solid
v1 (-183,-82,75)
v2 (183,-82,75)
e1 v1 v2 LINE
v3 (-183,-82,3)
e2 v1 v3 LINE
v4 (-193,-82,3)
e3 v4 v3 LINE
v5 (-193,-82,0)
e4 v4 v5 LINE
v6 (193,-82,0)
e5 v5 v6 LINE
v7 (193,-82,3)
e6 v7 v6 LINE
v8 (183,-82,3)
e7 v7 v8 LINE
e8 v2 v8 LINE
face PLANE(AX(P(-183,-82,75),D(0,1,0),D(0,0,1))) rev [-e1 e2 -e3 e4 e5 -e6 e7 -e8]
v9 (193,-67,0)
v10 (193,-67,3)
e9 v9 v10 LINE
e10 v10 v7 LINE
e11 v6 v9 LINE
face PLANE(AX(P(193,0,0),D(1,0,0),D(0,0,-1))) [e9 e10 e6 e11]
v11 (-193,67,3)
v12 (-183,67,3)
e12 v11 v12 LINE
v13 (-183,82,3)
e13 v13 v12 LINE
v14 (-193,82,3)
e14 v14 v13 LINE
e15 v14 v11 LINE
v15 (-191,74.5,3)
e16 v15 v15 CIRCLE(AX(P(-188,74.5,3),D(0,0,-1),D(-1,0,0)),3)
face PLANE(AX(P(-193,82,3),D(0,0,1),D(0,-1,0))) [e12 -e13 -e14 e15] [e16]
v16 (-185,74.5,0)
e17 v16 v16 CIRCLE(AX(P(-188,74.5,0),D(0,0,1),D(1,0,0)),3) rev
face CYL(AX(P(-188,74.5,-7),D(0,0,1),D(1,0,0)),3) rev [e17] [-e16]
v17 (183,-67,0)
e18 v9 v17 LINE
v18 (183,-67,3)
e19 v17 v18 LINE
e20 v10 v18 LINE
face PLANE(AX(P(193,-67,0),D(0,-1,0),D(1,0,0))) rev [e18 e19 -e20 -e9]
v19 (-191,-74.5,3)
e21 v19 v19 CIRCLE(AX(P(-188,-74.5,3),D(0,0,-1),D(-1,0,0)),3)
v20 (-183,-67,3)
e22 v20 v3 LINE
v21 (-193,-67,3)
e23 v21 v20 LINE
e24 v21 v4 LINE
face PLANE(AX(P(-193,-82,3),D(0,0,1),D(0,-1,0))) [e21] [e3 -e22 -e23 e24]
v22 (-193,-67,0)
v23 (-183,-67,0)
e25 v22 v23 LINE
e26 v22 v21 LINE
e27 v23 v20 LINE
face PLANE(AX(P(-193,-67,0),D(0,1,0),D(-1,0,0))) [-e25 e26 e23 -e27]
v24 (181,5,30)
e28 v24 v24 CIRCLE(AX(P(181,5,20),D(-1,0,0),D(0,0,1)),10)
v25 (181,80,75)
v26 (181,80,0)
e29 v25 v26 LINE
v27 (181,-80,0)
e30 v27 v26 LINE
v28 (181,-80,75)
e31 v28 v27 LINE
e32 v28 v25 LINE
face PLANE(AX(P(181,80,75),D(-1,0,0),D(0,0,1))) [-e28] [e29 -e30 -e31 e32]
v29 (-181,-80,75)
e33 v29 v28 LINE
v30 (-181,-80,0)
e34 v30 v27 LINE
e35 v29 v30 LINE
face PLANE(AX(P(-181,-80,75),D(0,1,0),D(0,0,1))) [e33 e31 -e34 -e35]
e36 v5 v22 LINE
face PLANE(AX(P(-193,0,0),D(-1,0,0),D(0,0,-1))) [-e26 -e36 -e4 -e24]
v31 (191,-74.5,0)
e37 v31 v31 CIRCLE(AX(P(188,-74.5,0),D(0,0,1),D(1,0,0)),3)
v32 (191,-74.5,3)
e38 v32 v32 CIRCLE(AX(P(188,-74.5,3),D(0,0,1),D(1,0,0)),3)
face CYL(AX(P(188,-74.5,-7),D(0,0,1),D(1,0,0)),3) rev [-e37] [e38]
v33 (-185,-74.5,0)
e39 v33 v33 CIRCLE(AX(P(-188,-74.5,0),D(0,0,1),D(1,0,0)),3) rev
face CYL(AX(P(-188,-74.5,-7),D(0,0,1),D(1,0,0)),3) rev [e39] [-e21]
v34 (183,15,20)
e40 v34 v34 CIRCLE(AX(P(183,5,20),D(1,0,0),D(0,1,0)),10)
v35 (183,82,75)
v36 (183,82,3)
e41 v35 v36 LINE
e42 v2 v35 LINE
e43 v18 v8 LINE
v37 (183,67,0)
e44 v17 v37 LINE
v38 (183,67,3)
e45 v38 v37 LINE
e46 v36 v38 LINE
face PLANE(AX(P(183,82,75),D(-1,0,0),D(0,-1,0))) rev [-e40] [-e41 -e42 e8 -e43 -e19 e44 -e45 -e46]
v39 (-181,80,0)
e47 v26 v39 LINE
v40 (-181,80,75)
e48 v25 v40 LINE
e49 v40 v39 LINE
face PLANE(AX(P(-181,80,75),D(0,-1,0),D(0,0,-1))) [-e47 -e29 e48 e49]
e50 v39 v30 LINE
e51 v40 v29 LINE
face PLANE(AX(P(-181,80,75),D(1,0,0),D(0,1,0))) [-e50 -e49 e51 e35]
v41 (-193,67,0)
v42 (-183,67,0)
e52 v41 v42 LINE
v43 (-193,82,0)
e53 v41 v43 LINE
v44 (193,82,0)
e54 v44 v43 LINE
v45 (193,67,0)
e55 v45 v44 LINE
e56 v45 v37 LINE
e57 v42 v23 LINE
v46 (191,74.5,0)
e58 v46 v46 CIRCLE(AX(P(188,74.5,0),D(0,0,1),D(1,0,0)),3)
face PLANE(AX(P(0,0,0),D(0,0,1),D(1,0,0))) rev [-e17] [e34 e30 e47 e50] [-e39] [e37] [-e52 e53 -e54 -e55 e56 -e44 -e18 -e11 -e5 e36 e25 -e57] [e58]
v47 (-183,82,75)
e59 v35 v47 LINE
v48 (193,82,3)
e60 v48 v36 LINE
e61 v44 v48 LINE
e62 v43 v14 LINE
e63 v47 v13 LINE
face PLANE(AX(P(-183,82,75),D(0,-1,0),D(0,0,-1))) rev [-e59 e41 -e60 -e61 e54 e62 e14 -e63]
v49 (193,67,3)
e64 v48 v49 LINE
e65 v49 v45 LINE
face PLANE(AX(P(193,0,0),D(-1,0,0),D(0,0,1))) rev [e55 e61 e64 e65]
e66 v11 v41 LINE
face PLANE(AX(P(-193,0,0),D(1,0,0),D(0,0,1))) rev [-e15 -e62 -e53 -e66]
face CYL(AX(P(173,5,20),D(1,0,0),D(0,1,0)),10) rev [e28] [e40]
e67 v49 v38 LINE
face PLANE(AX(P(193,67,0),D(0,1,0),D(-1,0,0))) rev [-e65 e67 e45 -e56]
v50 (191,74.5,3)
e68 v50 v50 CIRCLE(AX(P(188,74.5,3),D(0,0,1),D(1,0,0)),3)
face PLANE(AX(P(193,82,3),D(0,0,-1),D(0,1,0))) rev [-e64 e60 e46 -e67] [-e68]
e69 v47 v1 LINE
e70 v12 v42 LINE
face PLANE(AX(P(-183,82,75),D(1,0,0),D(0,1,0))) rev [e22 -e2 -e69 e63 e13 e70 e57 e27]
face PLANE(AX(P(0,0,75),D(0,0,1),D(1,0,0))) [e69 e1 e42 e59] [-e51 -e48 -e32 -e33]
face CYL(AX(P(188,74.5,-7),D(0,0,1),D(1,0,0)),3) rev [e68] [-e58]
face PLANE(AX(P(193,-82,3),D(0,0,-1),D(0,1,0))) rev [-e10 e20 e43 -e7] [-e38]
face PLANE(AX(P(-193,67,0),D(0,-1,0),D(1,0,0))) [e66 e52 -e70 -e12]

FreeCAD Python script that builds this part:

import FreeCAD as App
import Part
import Sketcher

V = App.Vector

doc = App.newDocument("Part")
params = doc.addObject("Spreadsheet::Sheet", "Params")
for row, (alias, value) in enumerate([
    ("sketch1_width", "366 mm"),
    ("sketch1_width2", "362 mm"),
    ("sketch1_height", "164 mm"),
    ("sketch1_height2", "160 mm"),
    ("pad1_length", "75 mm"),
    ("sketch2_width", "15 mm"),
    ("sketch2_height", "3 mm"),
    ("pad2_length", "10 mm"),
    ("sketch3_diameter", "6 mm"),
    ("pocket1_length", "10 mm"),
    ("sketch4_diameter", "20 mm"),
    ("pocket2_length", "10 mm"),
], start=1):
    params.set(f"A{row}", alias)
    params.set(f"B{row}", "=" + value)
    params.setAlias(f"B{row}", alias)

body = doc.addObject("PartDesign::Body", "Body")

sketch1 = body.newObject("Sketcher::SketchObject", "Sketch")
sketch1.AttachmentSupport = (doc.getObject("XY_Plane"), [""])
sketch1.MapMode = "FlatFace"
sketch1.addGeometry(Part.LineSegment(V(-183, 82, 0), V(-183, -82, 0)), False)
sketch1.addGeometry(Part.LineSegment(V(-183, -82, 0), V(183, -82, 0)), False)
sketch1.addGeometry(Part.LineSegment(V(183, -82, 0), V(183, 82, 0)), False)
sketch1.addGeometry(Part.LineSegment(V(183, 82, 0), V(-183, 82, 0)), False)
sketch1.addGeometry(Part.LineSegment(V(181, -80, 0), V(-181, -80, 0)), False)
sketch1.addGeometry(Part.LineSegment(V(-181, -80, 0), V(-181, 80, 0)), False)
sketch1.addGeometry(Part.LineSegment(V(-181, 80, 0), V(181, 80, 0)), False)
sketch1.addGeometry(Part.LineSegment(V(181, 80, 0), V(181, -80, 0)), False)
sketch1.addConstraint(Sketcher.Constraint("Coincident", 0, 2, 1, 1))
sketch1.addConstraint(Sketcher.Constraint("Coincident", 1, 2, 2, 1))
sketch1.addConstraint(Sketcher.Constraint("Coincident", 2, 2, 3, 1))
sketch1.addConstraint(Sketcher.Constraint("Coincident", 3, 2, 0, 1))
sketch1.addConstraint(Sketcher.Constraint("Coincident", 4, 2, 5, 1))
sketch1.addConstraint(Sketcher.Constraint("Coincident", 5, 2, 6, 1))
sketch1.addConstraint(Sketcher.Constraint("Coincident", 6, 2, 7, 1))
sketch1.addConstraint(Sketcher.Constraint("Coincident", 7, 2, 4, 1))
sketch1.addConstraint(Sketcher.Constraint("Vertical", 0))
sketch1.addConstraint(Sketcher.Constraint("Horizontal", 1))
sketch1.addConstraint(Sketcher.Constraint("Vertical", 2))
sketch1.addConstraint(Sketcher.Constraint("Horizontal", 3))
sketch1.addConstraint(Sketcher.Constraint("Horizontal", 4))
sketch1.addConstraint(Sketcher.Constraint("Vertical", 5))
sketch1.addConstraint(Sketcher.Constraint("Horizontal", 6))
sketch1.addConstraint(Sketcher.Constraint("Vertical", 7))
sketch1.addConstraint(Sketcher.Constraint("Symmetric", 0, 2, 2, 2, -1, 1))
sketch1.addConstraint(Sketcher.Constraint("Symmetric", 4, 2, 6, 2, -1, 1))
sketch1.addConstraint(Sketcher.Constraint("DistanceX", 1, 1, 1, 2, 366.0))
sketch1.addConstraint(Sketcher.Constraint("DistanceX", 4, 2, 4, 1, 362.0))
sketch1.addConstraint(Sketcher.Constraint("DistanceY", 0, 2, 0, 1, 164.0))
sketch1.addConstraint(Sketcher.Constraint("DistanceY", 5, 1, 5, 2, 160.0))
sketch1.setExpression("Constraints[18]", "Params.sketch1_width")
sketch1.setExpression("Constraints[19]", "Params.sketch1_width2")
sketch1.setExpression("Constraints[20]", "Params.sketch1_height")
sketch1.setExpression("Constraints[21]", "Params.sketch1_height2")
pad1 = body.newObject("PartDesign::Pad", "Pad")
pad1.Profile = sketch1
pad1.setExpression("Length", "Params.pad1_length")

sketch2 = body.newObject("Sketcher::SketchObject", "Sketch001")
sketch2.AttachmentSupport = (doc.getObject("YZ_Plane"), [""])
sketch2.MapMode = "FlatFace"
sketch2.AttachmentOffset = App.Placement(V(0, 0, 183), App.Rotation())
sketch2.addGeometry(Part.LineSegment(V(82, 3, 0), V(67, 3, 0)), False)
sketch2.addGeometry(Part.LineSegment(V(67, 3, 0), V(67, 0, 0)), False)
sketch2.addGeometry(Part.LineSegment(V(67, 0, 0), V(82, 0, 0)), False)
sketch2.addGeometry(Part.LineSegment(V(82, 0, 0), V(82, 3, 0)), False)
sketch2.addGeometry(Part.LineSegment(V(-67, 3, 0), V(-82, 3, 0)), False)
sketch2.addGeometry(Part.LineSegment(V(-82, 3, 0), V(-82, 0, 0)), False)
sketch2.addGeometry(Part.LineSegment(V(-82, 0, 0), V(-67, 0, 0)), False)
sketch2.addGeometry(Part.LineSegment(V(-67, 0, 0), V(-67, 3, 0)), False)
sketch2.addConstraint(Sketcher.Constraint("Coincident", 0, 2, 1, 1))
sketch2.addConstraint(Sketcher.Constraint("Coincident", 1, 2, 2, 1))
sketch2.addConstraint(Sketcher.Constraint("Coincident", 2, 2, 3, 1))
sketch2.addConstraint(Sketcher.Constraint("Coincident", 3, 2, 0, 1))
sketch2.addConstraint(Sketcher.Constraint("Coincident", 4, 2, 5, 1))
sketch2.addConstraint(Sketcher.Constraint("Coincident", 5, 2, 6, 1))
sketch2.addConstraint(Sketcher.Constraint("Coincident", 6, 2, 7, 1))
sketch2.addConstraint(Sketcher.Constraint("Coincident", 7, 2, 4, 1))
sketch2.addConstraint(Sketcher.Constraint("Horizontal", 0))
sketch2.addConstraint(Sketcher.Constraint("Vertical", 1))
sketch2.addConstraint(Sketcher.Constraint("Horizontal", 2))
sketch2.addConstraint(Sketcher.Constraint("Vertical", 3))
sketch2.addConstraint(Sketcher.Constraint("Horizontal", 4))
sketch2.addConstraint(Sketcher.Constraint("Vertical", 5))
sketch2.addConstraint(Sketcher.Constraint("Horizontal", 6))
sketch2.addConstraint(Sketcher.Constraint("Vertical", 7))
sketch2.addConstraint(Sketcher.Constraint("Symmetric", 2, 2, 5, 2, -1, 1))
sketch2.addConstraint(Sketcher.Constraint("Symmetric", 1, 2, 6, 2, -2))
sketch2.addConstraint(Sketcher.Constraint("Horizontal", 3, 2, 4, 2))
sketch2.addConstraint(Sketcher.Constraint("DistanceX", 0, 2, 0, 1, 15.0))
sketch2.addConstraint(Sketcher.Constraint("DistanceY", 1, 2, 1, 1, 3.0))
sketch2.addConstraint(Sketcher.Constraint("DistanceX", -1, 1, 0, 2, 67.0))
sketch2.setExpression("Constraints[19]", "Params.sketch2_width")
sketch2.setExpression("Constraints[20]", "Params.sketch2_height")
pad2 = body.newObject("PartDesign::Pad", "Pad001")
pad2.Profile = sketch2
pad2.setExpression("Length", "Params.pad2_length")
doc.recompute()

mirrored = body.newObject("PartDesign::Mirrored", "Mirrored")
mirrored.Originals = [pad2]
mirrored.MirrorPlane = (doc.getObject("YZ_Plane"), [""])
body.Tip = mirrored

sketch3 = body.newObject("Sketcher::SketchObject", "Sketch002")
sketch3.AttachmentSupport = (doc.getObject("XY_Plane"), [""])
sketch3.MapMode = "FlatFace"
sketch3.AttachmentOffset = App.Placement(V(0, 0, 3), App.Rotation())
sketch3.addGeometry(Part.Circle(V(188, 74.5, 0), V(0, 0, 1), 3), False)
sketch3.addGeometry(Part.Circle(V(188, -74.5, 0), V(0, 0, 1), 3), False)
sketch3.addConstraint(Sketcher.Constraint("Equal", 0, 1))
sketch3.addConstraint(Sketcher.Constraint("Symmetric", 0, 3, 1, 3, -1))
sketch3.addConstraint(Sketcher.Constraint("Diameter", 0, 6.0))
sketch3.addConstraint(Sketcher.Constraint("DistanceX", -1, 1, 0, 3, 188.0))
sketch3.addConstraint(Sketcher.Constraint("DistanceY", 1, 3, 0, 3, 149.0))
sketch3.setExpression("Constraints[2]", "Params.sketch3_diameter")
pocket1 = body.newObject("PartDesign::Pocket", "Pocket")
pocket1.Profile = sketch3
pocket1.setExpression("Length", "Params.pocket1_length")
doc.recompute()

mirrored2 = body.newObject("PartDesign::Mirrored", "Mirrored001")
mirrored2.Originals = [pocket1]
mirrored2.MirrorPlane = (doc.getObject("YZ_Plane"), [""])
body.Tip = mirrored2

sketch4 = body.newObject("Sketcher::SketchObject", "Sketch003")
sketch4.AttachmentSupport = (doc.getObject("YZ_Plane"), [""])
sketch4.MapMode = "FlatFace"
sketch4.AttachmentOffset = App.Placement(V(0, 0, 183), App.Rotation())
sketch4.addGeometry(Part.Circle(V(5, 20, 0), V(0, 0, 1), 10), False)
sketch4.addConstraint(Sketcher.Constraint("Diameter", 0, 20.0))
sketch4.addConstraint(Sketcher.Constraint("DistanceX", -1, 1, 0, 3, 5.0))
sketch4.addConstraint(Sketcher.Constraint("DistanceY", -1, 1, 0, 3, 20.0))
sketch4.setExpression("Constraints[0]", "Params.sketch4_diameter")
pocket2 = body.newObject("PartDesign::Pocket", "Pocket001")
pocket2.Profile = sketch4
pocket2.setExpression("Length", "Params.pocket2_length")

doc.recompute()
